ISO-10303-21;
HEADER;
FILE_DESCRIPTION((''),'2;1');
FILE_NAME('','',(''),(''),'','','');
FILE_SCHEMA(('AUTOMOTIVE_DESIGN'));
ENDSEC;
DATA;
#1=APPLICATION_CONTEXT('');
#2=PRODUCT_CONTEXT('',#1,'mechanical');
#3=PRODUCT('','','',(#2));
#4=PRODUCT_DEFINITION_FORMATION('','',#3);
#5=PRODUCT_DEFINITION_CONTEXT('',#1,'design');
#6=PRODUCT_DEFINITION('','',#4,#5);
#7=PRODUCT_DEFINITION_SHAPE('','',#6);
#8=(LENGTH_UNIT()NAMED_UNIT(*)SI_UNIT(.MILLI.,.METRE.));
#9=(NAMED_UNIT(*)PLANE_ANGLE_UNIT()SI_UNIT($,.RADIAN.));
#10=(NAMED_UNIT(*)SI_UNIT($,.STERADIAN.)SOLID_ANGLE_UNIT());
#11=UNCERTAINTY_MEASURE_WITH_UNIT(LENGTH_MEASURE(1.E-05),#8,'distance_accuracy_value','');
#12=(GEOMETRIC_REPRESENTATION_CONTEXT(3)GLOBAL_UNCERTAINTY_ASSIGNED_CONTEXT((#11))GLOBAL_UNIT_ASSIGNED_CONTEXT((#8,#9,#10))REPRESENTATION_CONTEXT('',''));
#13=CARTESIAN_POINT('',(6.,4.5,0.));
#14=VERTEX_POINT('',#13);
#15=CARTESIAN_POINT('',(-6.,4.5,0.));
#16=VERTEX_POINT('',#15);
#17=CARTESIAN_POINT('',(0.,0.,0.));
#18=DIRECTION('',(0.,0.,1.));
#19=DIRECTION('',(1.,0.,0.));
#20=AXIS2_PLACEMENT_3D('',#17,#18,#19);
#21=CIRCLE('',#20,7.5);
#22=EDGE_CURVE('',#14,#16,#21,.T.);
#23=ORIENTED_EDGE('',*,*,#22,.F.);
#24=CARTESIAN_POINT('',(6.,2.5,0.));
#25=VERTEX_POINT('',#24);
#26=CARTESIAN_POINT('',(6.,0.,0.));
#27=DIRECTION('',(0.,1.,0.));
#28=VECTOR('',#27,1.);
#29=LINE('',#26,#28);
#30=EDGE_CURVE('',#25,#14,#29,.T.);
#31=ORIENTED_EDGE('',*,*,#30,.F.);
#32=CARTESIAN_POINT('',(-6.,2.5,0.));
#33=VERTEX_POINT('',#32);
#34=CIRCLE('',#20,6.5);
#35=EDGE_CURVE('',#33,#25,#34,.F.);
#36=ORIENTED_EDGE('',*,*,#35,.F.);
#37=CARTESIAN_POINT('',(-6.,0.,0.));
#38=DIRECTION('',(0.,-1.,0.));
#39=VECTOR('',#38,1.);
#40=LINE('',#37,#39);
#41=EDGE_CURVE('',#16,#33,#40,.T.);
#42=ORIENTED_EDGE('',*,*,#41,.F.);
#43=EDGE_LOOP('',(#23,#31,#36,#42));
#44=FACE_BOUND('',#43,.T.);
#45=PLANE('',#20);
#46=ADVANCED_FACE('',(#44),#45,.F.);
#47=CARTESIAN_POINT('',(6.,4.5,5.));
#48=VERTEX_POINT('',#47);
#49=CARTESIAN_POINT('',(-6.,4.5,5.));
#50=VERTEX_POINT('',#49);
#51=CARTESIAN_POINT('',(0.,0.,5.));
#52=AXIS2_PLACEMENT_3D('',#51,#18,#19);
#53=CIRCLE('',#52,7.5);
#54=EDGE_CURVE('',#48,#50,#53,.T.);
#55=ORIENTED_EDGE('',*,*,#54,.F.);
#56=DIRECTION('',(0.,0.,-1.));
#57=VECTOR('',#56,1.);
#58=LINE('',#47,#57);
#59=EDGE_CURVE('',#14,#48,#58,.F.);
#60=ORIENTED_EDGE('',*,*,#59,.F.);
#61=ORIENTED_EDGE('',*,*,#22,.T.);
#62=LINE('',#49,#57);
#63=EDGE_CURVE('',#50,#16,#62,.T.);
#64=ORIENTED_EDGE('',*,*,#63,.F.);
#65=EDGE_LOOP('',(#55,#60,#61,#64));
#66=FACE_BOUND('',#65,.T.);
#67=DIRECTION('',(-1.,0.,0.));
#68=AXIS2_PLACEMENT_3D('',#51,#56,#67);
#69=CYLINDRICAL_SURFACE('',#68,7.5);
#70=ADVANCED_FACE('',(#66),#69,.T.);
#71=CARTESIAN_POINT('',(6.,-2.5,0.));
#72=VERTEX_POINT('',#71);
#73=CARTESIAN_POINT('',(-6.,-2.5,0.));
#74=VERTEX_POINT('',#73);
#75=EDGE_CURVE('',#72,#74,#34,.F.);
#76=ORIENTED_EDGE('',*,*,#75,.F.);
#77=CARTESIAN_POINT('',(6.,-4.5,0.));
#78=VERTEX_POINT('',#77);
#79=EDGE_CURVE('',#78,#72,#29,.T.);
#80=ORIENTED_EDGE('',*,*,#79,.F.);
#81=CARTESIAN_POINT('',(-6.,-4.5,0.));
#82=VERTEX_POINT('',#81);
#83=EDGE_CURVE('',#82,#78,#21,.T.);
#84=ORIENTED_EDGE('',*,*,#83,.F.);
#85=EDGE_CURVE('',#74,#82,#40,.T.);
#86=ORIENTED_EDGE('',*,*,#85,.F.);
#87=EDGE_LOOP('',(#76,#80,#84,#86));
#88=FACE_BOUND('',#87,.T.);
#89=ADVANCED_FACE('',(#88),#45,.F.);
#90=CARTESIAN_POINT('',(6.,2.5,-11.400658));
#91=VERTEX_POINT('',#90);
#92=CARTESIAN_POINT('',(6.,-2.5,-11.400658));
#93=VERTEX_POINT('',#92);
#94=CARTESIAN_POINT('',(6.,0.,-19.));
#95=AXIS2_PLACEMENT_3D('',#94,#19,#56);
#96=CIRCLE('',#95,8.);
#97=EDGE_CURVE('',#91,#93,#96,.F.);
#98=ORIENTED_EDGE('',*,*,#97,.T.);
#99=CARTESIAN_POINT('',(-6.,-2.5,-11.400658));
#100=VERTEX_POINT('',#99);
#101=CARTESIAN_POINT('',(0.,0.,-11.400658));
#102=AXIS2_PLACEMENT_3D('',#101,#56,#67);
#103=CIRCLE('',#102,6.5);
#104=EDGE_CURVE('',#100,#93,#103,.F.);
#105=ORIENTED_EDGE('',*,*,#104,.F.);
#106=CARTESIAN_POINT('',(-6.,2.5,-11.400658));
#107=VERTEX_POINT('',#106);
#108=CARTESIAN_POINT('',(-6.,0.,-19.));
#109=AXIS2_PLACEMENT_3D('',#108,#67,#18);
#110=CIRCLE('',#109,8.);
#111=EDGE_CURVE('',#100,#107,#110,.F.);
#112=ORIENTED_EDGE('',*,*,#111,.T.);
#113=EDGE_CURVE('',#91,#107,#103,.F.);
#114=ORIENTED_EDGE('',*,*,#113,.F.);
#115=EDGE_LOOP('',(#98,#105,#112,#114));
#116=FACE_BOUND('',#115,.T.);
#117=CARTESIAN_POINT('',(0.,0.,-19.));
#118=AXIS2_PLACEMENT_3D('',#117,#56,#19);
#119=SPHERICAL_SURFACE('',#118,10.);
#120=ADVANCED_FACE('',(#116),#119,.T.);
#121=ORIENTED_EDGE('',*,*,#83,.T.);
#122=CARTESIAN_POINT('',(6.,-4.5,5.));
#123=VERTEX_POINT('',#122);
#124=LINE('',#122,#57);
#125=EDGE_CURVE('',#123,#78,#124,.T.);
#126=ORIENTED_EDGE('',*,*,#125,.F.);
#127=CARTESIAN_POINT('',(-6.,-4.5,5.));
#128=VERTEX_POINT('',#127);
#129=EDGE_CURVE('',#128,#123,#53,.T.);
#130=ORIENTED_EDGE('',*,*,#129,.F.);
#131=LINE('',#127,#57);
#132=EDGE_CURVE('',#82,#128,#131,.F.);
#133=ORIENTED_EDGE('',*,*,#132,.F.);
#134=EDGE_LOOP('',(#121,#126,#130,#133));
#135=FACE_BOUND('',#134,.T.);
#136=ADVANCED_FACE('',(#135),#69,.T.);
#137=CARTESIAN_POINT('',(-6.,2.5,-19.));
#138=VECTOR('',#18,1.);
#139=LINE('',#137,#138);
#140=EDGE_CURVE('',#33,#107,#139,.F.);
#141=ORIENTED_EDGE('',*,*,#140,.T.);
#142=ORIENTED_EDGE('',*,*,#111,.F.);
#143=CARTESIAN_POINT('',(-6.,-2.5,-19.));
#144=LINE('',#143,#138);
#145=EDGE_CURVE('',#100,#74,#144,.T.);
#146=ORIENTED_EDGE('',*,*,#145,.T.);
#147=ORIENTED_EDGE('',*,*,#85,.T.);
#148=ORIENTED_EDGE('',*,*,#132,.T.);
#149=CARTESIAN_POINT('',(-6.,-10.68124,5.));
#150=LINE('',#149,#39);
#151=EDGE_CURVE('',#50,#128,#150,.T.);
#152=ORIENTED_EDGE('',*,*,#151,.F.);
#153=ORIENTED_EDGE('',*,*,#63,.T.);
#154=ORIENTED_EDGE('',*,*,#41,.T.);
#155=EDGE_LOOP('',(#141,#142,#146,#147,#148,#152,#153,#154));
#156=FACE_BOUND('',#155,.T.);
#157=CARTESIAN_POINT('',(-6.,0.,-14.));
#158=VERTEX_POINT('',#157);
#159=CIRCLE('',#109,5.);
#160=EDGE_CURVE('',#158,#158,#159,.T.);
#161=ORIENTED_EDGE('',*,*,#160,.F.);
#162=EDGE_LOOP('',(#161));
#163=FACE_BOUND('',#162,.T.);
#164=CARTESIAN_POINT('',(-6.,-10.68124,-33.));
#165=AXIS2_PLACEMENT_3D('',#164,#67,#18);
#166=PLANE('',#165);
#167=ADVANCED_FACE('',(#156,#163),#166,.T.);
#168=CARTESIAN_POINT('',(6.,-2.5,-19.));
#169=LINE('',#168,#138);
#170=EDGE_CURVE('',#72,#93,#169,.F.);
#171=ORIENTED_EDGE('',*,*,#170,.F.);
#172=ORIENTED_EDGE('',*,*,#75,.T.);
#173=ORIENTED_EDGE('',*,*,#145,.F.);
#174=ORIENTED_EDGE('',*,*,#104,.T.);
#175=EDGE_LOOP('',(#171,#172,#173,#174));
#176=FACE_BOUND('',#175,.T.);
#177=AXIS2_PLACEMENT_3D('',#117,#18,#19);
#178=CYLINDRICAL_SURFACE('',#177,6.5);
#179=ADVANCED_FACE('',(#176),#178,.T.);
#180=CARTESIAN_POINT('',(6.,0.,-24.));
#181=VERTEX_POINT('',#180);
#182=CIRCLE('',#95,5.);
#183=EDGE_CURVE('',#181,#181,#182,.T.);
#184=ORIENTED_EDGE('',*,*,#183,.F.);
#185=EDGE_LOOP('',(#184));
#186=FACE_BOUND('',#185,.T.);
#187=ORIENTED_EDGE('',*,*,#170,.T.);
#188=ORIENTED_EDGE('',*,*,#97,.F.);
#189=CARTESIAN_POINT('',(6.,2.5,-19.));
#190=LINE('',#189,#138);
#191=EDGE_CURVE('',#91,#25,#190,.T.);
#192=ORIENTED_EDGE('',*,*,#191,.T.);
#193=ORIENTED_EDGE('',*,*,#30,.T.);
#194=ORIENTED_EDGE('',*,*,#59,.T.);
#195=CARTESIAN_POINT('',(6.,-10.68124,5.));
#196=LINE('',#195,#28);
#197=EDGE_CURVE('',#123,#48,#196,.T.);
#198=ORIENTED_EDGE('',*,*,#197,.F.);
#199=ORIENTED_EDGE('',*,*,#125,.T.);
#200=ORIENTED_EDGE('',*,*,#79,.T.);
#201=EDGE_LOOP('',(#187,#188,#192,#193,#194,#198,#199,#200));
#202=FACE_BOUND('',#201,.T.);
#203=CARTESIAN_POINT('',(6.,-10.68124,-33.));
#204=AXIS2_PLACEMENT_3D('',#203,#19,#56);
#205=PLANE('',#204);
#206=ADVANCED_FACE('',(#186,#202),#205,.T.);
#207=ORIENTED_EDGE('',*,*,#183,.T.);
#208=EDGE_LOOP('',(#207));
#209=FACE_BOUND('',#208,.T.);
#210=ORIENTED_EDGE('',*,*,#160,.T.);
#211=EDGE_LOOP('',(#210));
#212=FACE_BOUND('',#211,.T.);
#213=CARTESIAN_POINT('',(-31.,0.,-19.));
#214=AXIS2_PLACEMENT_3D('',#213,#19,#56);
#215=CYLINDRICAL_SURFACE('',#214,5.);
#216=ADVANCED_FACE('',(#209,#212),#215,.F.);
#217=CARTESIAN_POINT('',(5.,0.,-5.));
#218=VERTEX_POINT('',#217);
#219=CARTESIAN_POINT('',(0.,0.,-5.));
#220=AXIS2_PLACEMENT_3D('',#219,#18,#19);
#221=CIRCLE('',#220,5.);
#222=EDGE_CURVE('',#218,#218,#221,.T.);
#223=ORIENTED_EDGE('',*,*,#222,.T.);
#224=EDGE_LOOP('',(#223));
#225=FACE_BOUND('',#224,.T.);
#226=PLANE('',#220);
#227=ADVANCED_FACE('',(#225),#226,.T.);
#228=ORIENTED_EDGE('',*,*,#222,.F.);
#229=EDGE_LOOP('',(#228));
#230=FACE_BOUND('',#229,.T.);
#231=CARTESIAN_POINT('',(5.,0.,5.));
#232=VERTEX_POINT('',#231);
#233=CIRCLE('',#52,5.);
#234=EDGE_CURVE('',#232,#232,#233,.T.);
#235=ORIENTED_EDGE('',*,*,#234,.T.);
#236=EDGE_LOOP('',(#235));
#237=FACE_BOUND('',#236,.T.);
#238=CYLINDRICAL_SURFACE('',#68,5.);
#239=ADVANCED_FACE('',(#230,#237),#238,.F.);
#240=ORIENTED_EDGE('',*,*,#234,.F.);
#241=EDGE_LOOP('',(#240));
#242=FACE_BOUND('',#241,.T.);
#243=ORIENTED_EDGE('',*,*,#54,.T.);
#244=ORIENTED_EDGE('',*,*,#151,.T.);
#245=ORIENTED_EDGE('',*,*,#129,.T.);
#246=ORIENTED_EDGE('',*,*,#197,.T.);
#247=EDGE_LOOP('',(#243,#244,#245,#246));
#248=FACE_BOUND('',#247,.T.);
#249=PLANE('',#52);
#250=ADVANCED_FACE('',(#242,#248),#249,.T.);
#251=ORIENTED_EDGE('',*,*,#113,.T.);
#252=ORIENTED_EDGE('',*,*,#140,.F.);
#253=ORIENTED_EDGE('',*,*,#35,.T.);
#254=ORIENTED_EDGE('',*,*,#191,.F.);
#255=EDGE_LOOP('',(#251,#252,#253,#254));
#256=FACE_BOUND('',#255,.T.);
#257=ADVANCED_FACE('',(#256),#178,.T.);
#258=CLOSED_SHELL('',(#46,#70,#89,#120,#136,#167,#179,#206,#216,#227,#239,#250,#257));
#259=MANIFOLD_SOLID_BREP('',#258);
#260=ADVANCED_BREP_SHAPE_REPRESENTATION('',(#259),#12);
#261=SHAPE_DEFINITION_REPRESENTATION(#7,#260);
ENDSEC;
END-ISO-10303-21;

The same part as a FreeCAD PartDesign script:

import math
import FreeCAD as App
import Part
import Sketcher


def add_polygon(sketch, points):
    """Adds a closed chain of lines whose ends are joined by coincident constraints."""
    first, n = sketch.GeometryCount, len(points)
    for a, b in zip(points, points[1:] + points[:1]):
        sketch.addGeometry(Part.LineSegment(App.Vector(*a, 0), App.Vector(*b, 0)), False)
    for i in range(n):
        sketch.addConstraint(Sketcher.Constraint("Coincident", first + i, 2, first + (i + 1) % n, 1))

doc = App.newDocument("Part")
body = doc.addObject("PartDesign::Body", "Body")

sketch1 = body.newObject("Sketcher::SketchObject", "Sketch")
sketch1.AttachmentSupport = (doc.getObject("XY_Plane"), [""])
sketch1.MapMode = "FlatFace"
sketch1.addGeometry([
    Part.Circle(App.Vector(0, 0, 0), App.Vector(0, 0, 1), 8),
    Part.Circle(App.Vector(0, 0, 0), App.Vector(0, 0, 1), 5),
], False)
sketch1.addConstraint([
    Sketcher.Constraint("Coincident", 0, 3, -1, 1),
    Sketcher.Constraint("Coincident", 1, 3, -1, 1),
    Sketcher.Constraint("Diameter", 0, 15.0),
    Sketcher.Constraint("Diameter", 1, 10.0),
])
pad1 = body.newObject("PartDesign::Pad", "Pad")
pad1.Profile = sketch1
pad1.Length = 5

sketch2 = body.newObject("Sketcher::SketchObject", "Sketch001")
sketch2.AttachmentSupport = (doc.getObject("XY_Plane"), [""])
sketch2.MapMode = "FlatFace"
sketch2.addGeometry(Part.Circle(App.Vector(0, 0, 0), App.Vector(0, 0, 1), 6), False)
sketch2.addConstraint([
    Sketcher.Constraint("Coincident", 0, 3, -1, 1),
    Sketcher.Constraint("Diameter", 0, 13.0),
])
pad2 = body.newObject("PartDesign::Pad", "Pad001")
pad2.Profile = sketch2
pad2.Length = 19
pad2.Reversed = True

sketch3 = body.newObject("Sketcher::SketchObject", "Sketch002")
sketch3.AttachmentSupport = (doc.getObject("XZ_Plane"), [""])
sketch3.MapMode = "FlatFace"
sketch3.addGeometry([
    Part.LineSegment(App.Vector(0, -9, 0), App.Vector(0, -29, 0)),
    Part.ArcOfCircle(Part.Circle(App.Vector(0, -19, 0), App.Vector(0, 0, 1), 10), math.radians(90), math.radians(270)),
], False)
sketch3.addConstraint([
    Sketcher.Constraint("Coincident", 0, 1, 1, 1),
    Sketcher.Constraint("Coincident", 1, 2, 0, 2),
    Sketcher.Constraint("Vertical", 0),
    Sketcher.Constraint("PointOnObject", 1, 3, -2),
    Sketcher.Constraint("PointOnObject", 0, 1, -2),
    Sketcher.Constraint("Radius", 1, 10.0),
    Sketcher.Constraint("DistanceY", 1, 3, -1, 1, 19.0),
])
revolution = body.newObject("PartDesign::Revolution", "Revolution")
revolution.Profile = sketch3
revolution.ReferenceAxis = (sketch3, ["V_Axis"])
revolution.Angle = 360

sketch4 = body.newObject("Sketcher::SketchObject", "Sketch003")
sketch4.AttachmentSupport = (doc.getObject("XY_Plane"), [""])
sketch4.MapMode = "FlatFace"
sketch4.AttachmentOffset = App.Placement(App.Vector(0, 0, 5), App.Rotation())
add_polygon(sketch4, [(-11, 15), (-11, -15), (11, -15), (11, 15)])
add_polygon(sketch4, [(6, -11), (-6, -11), (-6, 11), (6, 11)])
sketch4.addConstraint([
    Sketcher.Constraint("Vertical", 0),
    Sketcher.Constraint("Horizontal", 1),
    Sketcher.Constraint("Vertical", 2),
    Sketcher.Constraint("Horizontal", 3),
    Sketcher.Constraint("Horizontal", 4),
    Sketcher.Constraint("Vertical", 5),
    Sketcher.Constraint("Horizontal", 6),
    Sketcher.Constraint("Vertical", 7),
    Sketcher.Constraint("Symmetric", 0, 2, 2, 2, -1, 1),
    Sketcher.Constraint("Symmetric", 4, 2, 6, 2, -1, 1),
    Sketcher.Constraint("DistanceX", 4, 2, 4, 1, 12.0),
    Sketcher.Constraint("DistanceY", 5, 1, 5, 2, 21.362479),
    Sketcher.Constraint("DistanceX", 1, 1, 1, 2, 21.748753),
    Sketcher.Constraint("DistanceY", 0, 2, 0, 1, 30.770097),
])
pocket1 = body.newObject("PartDesign::Pocket", "Pocket")
pocket1.Profile = sketch4
pocket1.Length = 38

sketch5 = body.newObject("Sketcher::SketchObject", "Sketch004")
sketch5.AttachmentSupport = (doc.getObject("XY_Plane"), [""])
sketch5.MapMode = "FlatFace"
sketch5.addGeometry(Part.Circle(App.Vector(0, 0, 0), App.Vector(0, 0, 1), 5), False)
sketch5.addConstraint([
    Sketcher.Constraint("Coincident", 0, 3, -1, 1),
    Sketcher.Constraint("Diameter", 0, 10.0),
])
pocket2 = body.newObject("PartDesign::Pocket", "Pocket001")
pocket2.Profile = sketch5
pocket2.Length = 5

sketch6 = body.newObject("Sketcher::SketchObject", "Sketch005")
sketch6.AttachmentSupport = (doc.getObject("YZ_Plane"), [""])
sketch6.MapMode = "FlatFace"
sketch6.AttachmentOffset = App.Placement(App.Vector(0, 0, 6), App.Rotation())
sketch6.addGeometry(Part.Circle(App.Vector(0, -19, 0), App.Vector(0, 0, 1), 5), False)
sketch6.addConstraint([
    Sketcher.Constraint("PointOnObject", 0, 3, -2),
    Sketcher.Constraint("Diameter", 0, 10.0),
    Sketcher.Constraint("DistanceY", 0, 3, -1, 1, 19.0),
])
pocket3 = body.newObject("PartDesign::Pocket", "Pocket002")
pocket3.Profile = sketch6
pocket3.Length = 37

doc.recompute()
